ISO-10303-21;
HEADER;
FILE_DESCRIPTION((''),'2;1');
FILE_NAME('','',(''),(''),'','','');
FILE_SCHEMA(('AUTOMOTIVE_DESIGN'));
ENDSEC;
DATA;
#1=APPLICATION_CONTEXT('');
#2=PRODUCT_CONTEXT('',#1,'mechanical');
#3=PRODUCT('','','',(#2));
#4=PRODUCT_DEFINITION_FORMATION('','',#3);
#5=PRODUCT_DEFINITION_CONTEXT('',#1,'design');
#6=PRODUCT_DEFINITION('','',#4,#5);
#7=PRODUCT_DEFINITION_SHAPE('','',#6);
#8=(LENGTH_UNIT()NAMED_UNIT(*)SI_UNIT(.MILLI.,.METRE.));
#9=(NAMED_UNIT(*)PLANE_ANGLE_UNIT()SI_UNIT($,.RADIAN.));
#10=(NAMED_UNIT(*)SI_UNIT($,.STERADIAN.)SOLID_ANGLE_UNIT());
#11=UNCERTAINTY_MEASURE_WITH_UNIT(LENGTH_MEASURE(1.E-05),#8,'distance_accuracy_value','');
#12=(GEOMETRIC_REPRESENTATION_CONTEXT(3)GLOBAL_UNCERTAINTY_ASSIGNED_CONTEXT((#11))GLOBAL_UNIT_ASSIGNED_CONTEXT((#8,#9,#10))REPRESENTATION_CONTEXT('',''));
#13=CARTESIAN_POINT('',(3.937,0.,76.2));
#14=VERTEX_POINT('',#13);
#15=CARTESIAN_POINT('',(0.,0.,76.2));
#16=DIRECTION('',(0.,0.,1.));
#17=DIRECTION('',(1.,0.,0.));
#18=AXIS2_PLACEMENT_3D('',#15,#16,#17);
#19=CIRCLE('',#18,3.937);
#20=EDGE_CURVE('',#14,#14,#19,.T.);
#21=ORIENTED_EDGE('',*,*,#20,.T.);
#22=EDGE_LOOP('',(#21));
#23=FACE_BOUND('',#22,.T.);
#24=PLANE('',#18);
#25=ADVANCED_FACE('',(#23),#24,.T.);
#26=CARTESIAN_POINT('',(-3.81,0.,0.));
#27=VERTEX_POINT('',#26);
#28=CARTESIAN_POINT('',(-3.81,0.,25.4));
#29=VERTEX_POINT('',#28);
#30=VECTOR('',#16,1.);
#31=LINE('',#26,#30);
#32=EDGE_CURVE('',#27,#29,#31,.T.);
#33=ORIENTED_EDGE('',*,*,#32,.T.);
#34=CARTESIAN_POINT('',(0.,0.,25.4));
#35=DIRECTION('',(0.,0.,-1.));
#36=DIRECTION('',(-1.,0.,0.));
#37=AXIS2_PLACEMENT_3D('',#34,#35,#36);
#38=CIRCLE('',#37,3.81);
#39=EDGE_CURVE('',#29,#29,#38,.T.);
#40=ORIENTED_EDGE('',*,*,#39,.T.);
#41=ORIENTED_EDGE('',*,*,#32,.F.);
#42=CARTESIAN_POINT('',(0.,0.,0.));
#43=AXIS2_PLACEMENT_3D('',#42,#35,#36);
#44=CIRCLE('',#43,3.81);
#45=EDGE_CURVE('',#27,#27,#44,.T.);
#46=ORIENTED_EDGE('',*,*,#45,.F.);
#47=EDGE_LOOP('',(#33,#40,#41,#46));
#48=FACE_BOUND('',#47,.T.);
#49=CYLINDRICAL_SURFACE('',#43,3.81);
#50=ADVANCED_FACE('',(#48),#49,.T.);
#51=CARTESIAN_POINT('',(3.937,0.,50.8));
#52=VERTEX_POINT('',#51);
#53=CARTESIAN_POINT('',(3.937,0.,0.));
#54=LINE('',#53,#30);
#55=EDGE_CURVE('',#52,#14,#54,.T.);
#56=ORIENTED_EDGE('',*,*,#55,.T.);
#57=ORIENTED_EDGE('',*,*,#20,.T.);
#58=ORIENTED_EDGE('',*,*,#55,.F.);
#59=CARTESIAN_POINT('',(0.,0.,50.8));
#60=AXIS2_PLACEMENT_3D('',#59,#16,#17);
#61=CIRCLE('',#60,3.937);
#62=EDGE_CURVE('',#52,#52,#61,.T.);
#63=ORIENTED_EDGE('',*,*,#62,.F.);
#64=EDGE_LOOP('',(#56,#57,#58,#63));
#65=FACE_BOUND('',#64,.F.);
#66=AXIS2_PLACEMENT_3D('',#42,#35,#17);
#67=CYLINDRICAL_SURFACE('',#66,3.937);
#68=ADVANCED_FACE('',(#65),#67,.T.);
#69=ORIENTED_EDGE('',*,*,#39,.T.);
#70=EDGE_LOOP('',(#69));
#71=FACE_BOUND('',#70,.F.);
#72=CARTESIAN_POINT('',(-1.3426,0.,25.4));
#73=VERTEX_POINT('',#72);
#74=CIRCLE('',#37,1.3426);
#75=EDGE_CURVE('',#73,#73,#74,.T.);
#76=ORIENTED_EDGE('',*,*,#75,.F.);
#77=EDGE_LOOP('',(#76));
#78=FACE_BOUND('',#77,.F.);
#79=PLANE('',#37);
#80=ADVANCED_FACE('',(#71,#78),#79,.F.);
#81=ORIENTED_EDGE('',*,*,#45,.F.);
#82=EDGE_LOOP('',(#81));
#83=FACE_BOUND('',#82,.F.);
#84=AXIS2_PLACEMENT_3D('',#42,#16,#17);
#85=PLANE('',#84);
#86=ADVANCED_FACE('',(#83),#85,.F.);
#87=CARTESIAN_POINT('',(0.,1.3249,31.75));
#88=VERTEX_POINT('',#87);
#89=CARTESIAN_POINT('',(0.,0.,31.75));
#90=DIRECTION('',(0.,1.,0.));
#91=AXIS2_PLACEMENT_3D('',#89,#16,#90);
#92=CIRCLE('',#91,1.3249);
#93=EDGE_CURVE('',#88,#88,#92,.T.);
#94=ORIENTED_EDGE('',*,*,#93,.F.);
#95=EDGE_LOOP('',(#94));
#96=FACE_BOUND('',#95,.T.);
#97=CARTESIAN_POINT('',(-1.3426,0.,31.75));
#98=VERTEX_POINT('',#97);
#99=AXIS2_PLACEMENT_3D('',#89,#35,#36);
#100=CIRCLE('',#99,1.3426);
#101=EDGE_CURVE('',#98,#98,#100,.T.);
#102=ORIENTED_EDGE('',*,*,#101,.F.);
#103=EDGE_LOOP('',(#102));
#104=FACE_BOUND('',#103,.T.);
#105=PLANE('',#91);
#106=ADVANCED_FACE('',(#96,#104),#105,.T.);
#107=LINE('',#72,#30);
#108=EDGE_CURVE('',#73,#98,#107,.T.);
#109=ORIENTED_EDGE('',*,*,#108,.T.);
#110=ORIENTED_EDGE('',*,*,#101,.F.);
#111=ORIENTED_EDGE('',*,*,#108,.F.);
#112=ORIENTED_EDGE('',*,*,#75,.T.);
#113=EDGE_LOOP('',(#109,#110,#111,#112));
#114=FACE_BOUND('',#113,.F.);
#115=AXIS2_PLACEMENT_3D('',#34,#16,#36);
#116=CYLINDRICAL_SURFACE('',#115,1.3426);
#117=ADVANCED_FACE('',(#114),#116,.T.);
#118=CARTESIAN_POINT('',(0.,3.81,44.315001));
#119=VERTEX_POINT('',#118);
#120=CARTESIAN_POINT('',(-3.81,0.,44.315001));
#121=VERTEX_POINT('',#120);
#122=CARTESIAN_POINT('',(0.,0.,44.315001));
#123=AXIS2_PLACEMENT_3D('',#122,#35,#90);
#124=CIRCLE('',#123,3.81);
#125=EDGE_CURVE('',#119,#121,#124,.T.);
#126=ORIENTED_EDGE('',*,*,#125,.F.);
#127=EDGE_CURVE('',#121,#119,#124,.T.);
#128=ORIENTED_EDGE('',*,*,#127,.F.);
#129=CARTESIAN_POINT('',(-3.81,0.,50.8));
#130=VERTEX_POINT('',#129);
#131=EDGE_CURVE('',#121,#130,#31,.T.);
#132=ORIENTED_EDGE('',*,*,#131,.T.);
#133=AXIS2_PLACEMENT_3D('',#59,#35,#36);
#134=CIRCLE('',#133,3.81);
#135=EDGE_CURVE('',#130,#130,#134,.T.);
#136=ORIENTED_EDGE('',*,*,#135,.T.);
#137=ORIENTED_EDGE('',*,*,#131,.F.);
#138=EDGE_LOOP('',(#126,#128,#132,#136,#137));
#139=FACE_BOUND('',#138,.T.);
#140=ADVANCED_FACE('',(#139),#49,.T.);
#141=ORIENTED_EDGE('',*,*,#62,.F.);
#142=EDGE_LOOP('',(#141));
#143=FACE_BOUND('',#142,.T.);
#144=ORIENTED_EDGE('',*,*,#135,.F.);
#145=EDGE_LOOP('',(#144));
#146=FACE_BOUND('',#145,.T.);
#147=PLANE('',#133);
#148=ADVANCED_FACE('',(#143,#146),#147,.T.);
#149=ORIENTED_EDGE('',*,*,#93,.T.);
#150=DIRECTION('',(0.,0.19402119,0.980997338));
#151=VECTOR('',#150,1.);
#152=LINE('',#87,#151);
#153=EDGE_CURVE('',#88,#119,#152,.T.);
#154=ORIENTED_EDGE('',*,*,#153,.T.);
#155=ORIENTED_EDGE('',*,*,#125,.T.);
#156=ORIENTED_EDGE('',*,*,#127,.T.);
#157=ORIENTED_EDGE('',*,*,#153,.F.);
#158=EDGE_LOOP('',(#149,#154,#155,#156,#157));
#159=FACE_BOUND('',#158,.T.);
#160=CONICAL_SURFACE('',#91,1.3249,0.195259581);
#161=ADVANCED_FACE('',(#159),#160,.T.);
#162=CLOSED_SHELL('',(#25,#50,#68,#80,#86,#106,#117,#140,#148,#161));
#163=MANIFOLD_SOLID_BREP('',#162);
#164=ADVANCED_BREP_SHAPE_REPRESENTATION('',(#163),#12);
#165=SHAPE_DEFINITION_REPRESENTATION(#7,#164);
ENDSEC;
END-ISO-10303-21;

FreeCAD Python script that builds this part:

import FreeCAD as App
import Part
import Sketcher
from FreeCAD import Vector
Q = App.Units.Quantity


def add_polygon(sketch, points):
    """Adds a closed chain of lines whose ends are joined by coincident constraints."""
    first, n = sketch.GeometryCount, len(points)
    for a, b in zip(points, points[1:] + points[:1]):
        sketch.addGeometry(Part.LineSegment(App.Vector(*a, 0), App.Vector(*b, 0)), False)
    for i in range(n):
        sketch.addConstraint(Sketcher.Constraint("Coincident", first + i, 2, first + (i + 1) % n, 1))

doc = App.newDocument("Part")
params = doc.addObject("Spreadsheet::Sheet", "Params")
for row, (alias, value) in enumerate([
    ("sketch1_diameter", "0.31 in"),
    ("pad1_length", "3 in"),
    ("sketch2_diameter", "0.3 in"),
    ("sketch2_diameter2", "0.31 in"),
    ("pocket1_length", "2 in"),
    ("sketch3_height", "0.25 in"),
    ("groove_angle", "360 deg"),
    ("sketch4_height", "0.5 in"),
    ("groove2_angle", "360 deg"),
], start=1):
    params.set(f"A{row}", alias)
    params.set(f"B{row}", "=" + value)
    params.setAlias(f"B{row}", alias)

body = doc.addObject("PartDesign::Body", "Body")

sketch1 = body.newObject("Sketcher::SketchObject", "Sketch")
sketch1.AttachmentSupport = (doc.getObject("XY_Plane"), [""])
sketch1.MapMode = "FlatFace"
sketch1.addGeometry(Part.Circle(Vector(0, 0, 0), Vector(0, 0, 1), 3.9), False)
sketch1.addConstraint([
    Sketcher.Constraint("Coincident", 0, 3, -1, 1),
    Sketcher.Constraint("Diameter", 0, Q("0.31 in")),
])
sketch1.setExpression("Constraints[1]", "Params.sketch1_diameter")
pad1 = body.newObject("PartDesign::Pad", "Pad")
pad1.Profile = sketch1
pad1.setExpression("Length", "Params.pad1_length")

sketch2 = body.newObject("Sketcher::SketchObject", "Sketch001")
sketch2.AttachmentSupport = (doc.getObject("XY_Plane"), [""])
sketch2.MapMode = "FlatFace"
sketch2.addGeometry([
    Part.Circle(Vector(0, 0, 0), Vector(0, 0, 1), 3.9),
    Part.Circle(Vector(0, 0, 0), Vector(0, 0, 1), 3.8),
], False)
sketch2.addConstraint([
    Sketcher.Constraint("Coincident", 0, 3, -1, 1),
    Sketcher.Constraint("Coincident", 1, 3, -1, 1),
    Sketcher.Constraint("Diameter", 1, Q("0.3 in")),
    Sketcher.Constraint("Diameter", 0, Q("0.31 in")),
])
sketch2.setExpression("Constraints[2]", "Params.sketch2_diameter")
sketch2.setExpression("Constraints[3]", "Params.sketch2_diameter2")
pocket1 = body.newObject("PartDesign::Pocket", "Pocket")
pocket1.Profile = sketch2
pocket1.setExpression("Length", "Params.pocket1_length")
pocket1.Reversed = True

sketch3 = body.newObject("Sketcher::SketchObject", "Sketch002")
sketch3.AttachmentSupport = (doc.getObject("XZ_Plane"), [""])
sketch3.MapMode = "FlatFace"
add_polygon(sketch3, [(-1.3, 25.4), (-3.8, 25.4), (-3.8, 31.8), (-1.3, 31.8)])
sketch3.addConstraint([
    Sketcher.Constraint("Horizontal", 0),
    Sketcher.Constraint("Vertical", 1),
    Sketcher.Constraint("Horizontal", 2),
    Sketcher.Constraint("Vertical", 3),
    Sketcher.Constraint("DistanceY", -1, 1, 0, 2, Q("1 in")),
    Sketcher.Constraint("DistanceY", 1, 1, 1, 2, Q("0.25 in")),
    Sketcher.Constraint("DistanceX", 0, 2, -1, 1, Q("0.15 in")),
    Sketcher.Constraint("DistanceX", 0, 2, 0, 1, Q("2.4674 mm")),
])
sketch3.setExpression("Constraints[9]", "Params.sketch3_height")
groove = body.newObject("PartDesign::Groove", "Groove")
groove.Profile = sketch3
groove.ReferenceAxis = (sketch3, ["V_Axis"])
groove.setExpression("Angle", "Params.groove_angle")

sketch4 = body.newObject("Sketcher::SketchObject", "Sketch003")
sketch4.AttachmentSupport = (doc.getObject("YZ_Plane"), [""])
sketch4.MapMode = "FlatFace"
add_polygon(sketch4, [(1.3, 31.8), (3.8, 31.8), (3.8, 44.5)])
sketch4.addConstraint([
    Sketcher.Constraint("Horizontal", 0),
    Sketcher.Constraint("Vertical", 1),
    Sketcher.Constraint("DistanceY", 1, 1, 1, 2, Q("0.5 in")),
    Sketcher.Constraint("DistanceY", -1, 1, 0, 2, Q("1.25 in")),
    Sketcher.Constraint("DistanceX", 0, 1, 0, 2, Q("0.0989 in")),
    Sketcher.Constraint("DistanceX", -1, 1, 0, 2, Q("3.8367 mm")),
])
sketch4.setExpression("Constraints[5]", "Params.sketch4_height")
groove2 = body.newObject("PartDesign::Groove", "Groove001")
groove2.Profile = sketch4
groove2.ReferenceAxis = (sketch4, ["V_Axis"])
groove2.setExpression("Angle", "Params.groove2_angle")

doc.recompute()
